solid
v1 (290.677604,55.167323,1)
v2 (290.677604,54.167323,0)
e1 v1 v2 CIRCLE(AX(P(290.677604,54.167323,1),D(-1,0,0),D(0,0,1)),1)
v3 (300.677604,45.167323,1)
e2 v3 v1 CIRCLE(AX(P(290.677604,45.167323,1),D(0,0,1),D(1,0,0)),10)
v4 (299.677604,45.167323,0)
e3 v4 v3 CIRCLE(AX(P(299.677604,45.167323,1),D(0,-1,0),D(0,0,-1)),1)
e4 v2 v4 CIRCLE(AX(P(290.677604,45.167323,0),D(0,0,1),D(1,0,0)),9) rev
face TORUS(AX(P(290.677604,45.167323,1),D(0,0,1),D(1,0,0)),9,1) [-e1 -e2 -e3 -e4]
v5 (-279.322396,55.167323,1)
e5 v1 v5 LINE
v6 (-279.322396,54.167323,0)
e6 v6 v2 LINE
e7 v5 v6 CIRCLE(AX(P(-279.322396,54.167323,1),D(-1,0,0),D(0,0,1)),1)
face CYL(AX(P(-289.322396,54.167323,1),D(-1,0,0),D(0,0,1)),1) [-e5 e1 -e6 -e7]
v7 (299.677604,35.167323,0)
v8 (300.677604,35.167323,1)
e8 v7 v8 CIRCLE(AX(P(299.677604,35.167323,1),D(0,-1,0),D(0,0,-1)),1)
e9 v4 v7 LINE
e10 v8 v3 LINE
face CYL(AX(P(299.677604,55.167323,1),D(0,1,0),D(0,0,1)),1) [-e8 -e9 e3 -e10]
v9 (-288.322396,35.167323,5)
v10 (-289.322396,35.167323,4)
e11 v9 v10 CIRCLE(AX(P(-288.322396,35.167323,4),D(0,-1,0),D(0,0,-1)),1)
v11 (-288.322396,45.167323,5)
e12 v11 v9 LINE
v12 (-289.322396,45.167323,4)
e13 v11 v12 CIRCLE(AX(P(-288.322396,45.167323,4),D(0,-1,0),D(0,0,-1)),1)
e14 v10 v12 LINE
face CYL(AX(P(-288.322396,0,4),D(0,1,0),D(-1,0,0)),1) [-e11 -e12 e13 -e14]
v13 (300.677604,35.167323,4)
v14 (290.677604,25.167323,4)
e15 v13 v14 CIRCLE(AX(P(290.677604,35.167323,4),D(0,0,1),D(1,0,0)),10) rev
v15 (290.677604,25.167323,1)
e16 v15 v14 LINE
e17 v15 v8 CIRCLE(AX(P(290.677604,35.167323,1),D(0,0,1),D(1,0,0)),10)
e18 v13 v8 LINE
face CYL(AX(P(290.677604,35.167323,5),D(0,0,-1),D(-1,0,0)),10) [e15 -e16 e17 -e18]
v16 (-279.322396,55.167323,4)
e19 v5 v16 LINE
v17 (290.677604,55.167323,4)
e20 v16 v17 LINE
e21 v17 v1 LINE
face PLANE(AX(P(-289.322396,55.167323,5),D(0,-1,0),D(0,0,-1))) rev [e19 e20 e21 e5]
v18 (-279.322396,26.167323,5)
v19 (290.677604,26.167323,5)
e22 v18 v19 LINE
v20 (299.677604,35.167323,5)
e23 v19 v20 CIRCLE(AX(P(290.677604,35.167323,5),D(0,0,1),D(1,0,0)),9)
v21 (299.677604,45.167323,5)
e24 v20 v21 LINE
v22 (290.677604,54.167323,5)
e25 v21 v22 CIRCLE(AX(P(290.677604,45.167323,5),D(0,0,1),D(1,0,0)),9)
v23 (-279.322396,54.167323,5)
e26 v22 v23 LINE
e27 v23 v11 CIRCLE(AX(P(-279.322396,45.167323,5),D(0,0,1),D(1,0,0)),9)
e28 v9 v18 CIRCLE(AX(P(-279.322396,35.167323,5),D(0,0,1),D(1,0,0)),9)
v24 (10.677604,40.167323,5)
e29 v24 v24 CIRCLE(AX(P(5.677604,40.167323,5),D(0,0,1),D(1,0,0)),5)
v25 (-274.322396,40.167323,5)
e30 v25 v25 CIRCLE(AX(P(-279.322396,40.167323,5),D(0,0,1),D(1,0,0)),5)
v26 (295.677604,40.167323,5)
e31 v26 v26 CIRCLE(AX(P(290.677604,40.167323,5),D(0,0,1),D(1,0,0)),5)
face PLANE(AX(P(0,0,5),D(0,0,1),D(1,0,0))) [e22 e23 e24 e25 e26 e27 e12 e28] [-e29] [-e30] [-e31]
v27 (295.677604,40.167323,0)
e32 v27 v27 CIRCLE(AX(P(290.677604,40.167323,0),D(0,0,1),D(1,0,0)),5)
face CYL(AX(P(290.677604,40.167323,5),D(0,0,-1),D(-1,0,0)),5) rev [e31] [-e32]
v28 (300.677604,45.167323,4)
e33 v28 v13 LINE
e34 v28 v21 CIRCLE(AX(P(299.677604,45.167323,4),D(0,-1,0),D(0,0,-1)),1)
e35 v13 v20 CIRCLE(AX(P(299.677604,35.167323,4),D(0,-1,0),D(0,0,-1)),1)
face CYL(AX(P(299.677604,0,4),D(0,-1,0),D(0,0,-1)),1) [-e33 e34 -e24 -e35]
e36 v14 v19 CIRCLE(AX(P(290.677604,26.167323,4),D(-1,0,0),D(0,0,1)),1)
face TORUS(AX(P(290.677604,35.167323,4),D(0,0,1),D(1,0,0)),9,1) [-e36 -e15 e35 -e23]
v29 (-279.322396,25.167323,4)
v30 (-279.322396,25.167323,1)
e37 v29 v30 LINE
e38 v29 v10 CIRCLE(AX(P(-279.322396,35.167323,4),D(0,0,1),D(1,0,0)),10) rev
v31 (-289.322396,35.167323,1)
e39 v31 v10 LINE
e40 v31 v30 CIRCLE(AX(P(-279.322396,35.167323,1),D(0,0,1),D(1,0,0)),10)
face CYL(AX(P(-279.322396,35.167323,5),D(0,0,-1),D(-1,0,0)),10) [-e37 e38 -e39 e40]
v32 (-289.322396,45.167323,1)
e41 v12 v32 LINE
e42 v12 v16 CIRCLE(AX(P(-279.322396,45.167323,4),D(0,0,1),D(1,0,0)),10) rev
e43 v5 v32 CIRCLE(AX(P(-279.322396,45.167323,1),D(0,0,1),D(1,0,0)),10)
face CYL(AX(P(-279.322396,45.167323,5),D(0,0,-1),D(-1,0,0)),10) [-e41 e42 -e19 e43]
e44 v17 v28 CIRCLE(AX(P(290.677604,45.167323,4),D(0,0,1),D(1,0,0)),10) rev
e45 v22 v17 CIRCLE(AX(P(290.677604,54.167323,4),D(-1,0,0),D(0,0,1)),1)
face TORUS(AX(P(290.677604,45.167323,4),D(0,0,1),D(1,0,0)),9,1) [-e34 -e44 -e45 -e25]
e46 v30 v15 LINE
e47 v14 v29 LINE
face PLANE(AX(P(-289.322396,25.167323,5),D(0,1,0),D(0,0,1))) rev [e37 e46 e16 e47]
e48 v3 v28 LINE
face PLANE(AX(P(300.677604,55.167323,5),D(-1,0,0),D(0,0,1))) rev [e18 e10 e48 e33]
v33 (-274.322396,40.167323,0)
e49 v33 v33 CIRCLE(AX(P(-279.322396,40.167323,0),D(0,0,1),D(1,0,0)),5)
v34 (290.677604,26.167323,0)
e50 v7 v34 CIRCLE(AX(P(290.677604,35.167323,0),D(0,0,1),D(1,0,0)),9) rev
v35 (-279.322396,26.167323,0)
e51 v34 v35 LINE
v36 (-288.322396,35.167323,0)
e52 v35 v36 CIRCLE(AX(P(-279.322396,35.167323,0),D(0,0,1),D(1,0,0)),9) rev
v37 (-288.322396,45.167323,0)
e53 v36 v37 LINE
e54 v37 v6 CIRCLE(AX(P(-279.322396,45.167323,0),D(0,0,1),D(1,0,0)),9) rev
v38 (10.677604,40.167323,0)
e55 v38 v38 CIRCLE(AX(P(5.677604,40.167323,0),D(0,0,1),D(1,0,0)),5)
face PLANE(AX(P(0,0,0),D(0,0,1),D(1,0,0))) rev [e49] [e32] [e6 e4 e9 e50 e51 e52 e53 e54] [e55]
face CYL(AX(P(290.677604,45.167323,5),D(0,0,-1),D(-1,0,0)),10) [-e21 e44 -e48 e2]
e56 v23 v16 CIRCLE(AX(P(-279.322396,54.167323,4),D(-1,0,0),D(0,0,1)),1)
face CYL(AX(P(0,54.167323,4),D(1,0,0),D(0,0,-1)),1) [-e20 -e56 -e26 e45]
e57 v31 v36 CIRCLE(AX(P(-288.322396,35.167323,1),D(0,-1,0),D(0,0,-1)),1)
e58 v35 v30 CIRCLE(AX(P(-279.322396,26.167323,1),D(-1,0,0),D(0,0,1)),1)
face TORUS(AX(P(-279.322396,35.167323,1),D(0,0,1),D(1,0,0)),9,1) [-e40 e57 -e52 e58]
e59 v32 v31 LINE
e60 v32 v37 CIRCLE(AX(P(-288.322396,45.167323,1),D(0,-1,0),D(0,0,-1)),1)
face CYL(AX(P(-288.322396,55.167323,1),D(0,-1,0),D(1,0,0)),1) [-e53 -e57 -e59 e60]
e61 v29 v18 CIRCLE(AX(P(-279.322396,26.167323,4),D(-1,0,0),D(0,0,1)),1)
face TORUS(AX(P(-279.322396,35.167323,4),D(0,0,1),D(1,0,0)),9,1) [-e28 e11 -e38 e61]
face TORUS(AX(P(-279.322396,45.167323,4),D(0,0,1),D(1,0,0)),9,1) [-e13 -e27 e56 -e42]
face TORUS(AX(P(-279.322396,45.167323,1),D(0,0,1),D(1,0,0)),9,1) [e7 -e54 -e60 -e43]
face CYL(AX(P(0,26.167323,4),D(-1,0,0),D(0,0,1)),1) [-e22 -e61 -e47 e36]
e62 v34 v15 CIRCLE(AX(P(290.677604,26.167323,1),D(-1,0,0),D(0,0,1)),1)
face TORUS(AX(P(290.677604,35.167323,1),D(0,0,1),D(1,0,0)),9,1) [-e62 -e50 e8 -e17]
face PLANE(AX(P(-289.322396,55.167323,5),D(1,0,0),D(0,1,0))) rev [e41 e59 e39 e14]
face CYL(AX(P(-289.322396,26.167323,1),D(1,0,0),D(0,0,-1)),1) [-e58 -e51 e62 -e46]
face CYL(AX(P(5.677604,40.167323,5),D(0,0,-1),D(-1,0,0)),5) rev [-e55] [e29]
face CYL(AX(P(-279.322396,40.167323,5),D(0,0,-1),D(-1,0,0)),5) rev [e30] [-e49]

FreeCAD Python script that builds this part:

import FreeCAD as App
import Part
import Sketcher
from FreeCAD import Vector


def edges_at(feature, points):
    """Names of the edges that pass closest to the given points."""
    edges = feature.Shape.Edges
    near = lambda p: min(range(len(edges)), key=lambda i: edges[i].distToShape(Part.Vertex(*p))[0])
    return sorted({f"Edge{near(p) + 1}" for p in points})

doc = App.newDocument("Part")
body = doc.addObject("PartDesign::Body", "Body")

sketch1 = doc.addObject("Sketcher::SketchObject", "Sketch")
body.addObject(sketch1)
sketch1.AttachmentSupport = (doc.XY_Plane, [""])
sketch1.MapMode = "FlatFace"
sketch1.addGeometry(Part.LineSegment(Vector(-289.322396, 55.167323, 0), Vector(-289.322396, 25.167323, 0)), False)
sketch1.addGeometry(Part.LineSegment(Vector(-289.322396, 25.167323, 0), Vector(300.677604, 25.167323, 0)), False)
sketch1.addGeometry(Part.LineSegment(Vector(300.677604, 25.167323, 0), Vector(300.677604, 55.167323, 0)), False)
sketch1.addGeometry(Part.LineSegment(Vector(300.677604, 55.167323, 0), Vector(-289.322396, 55.167323, 0)), False)
sketch1.addGeometry(Part.Circle(Vector(-279.322396, 40.167323, 0), Vector(0, 0, 1), 5), False)
sketch1.addGeometry(Part.Circle(Vector(5.677604, 40.167323, 0), Vector(0, 0, 1), 5), False)
sketch1.addGeometry(Part.Circle(Vector(290.677604, 40.167323, 0), Vector(0, 0, 1), 5), False)
sketch1.addConstraint(Sketcher.Constraint("Coincident", 0, 2, 1, 1))
sketch1.addConstraint(Sketcher.Constraint("Coincident", 1, 2, 2, 1))
sketch1.addConstraint(Sketcher.Constraint("Coincident", 2, 2, 3, 1))
sketch1.addConstraint(Sketcher.Constraint("Coincident", 3, 2, 0, 1))
sketch1.addConstraint(Sketcher.Constraint("Vertical", 0))
sketch1.addConstraint(Sketcher.Constraint("Horizontal", 1))
sketch1.addConstraint(Sketcher.Constraint("Vertical", 2))
sketch1.addConstraint(Sketcher.Constraint("Horizontal", 3))
sketch1.addConstraint(Sketcher.Constraint("Equal", 4, 5))
sketch1.addConstraint(Sketcher.Constraint("Equal", 5, 6))
sketch1.addConstraint(Sketcher.Constraint("Horizontal", 4, 3, 5, 3))
sketch1.addConstraint(Sketcher.Constraint("Horizontal", 5, 3, 6, 3))
sketch1.addConstraint(Sketcher.Constraint("Diameter", 4, 10.0))
sketch1.addConstraint(Sketcher.Constraint("DistanceX", 1, 1, 1, 2, 590.0))
sketch1.addConstraint(Sketcher.Constraint("DistanceY", 0, 2, 0, 1, 30.0))
sketch1.addConstraint(Sketcher.Constraint("DistanceX", 4, 3, 5, 3, 285.0))
sketch1.addConstraint(Sketcher.Constraint("DistanceX", 5, 3, 6, 3, 285.0))
sketch1.addConstraint(Sketcher.Constraint("DistanceX", 0, 2, 4, 3, 10.0))
sketch1.addConstraint(Sketcher.Constraint("DistanceY", 0, 2, 4, 3, 15.0))
sketch1.addConstraint(Sketcher.Constraint("DistanceX", 4, 3, -1, 1, 279.322396))
sketch1.addConstraint(Sketcher.Constraint("DistanceY", -1, 1, 4, 3, 40.167323))
pad1 = doc.addObject("PartDesign::Pad", "Pad")
body.addObject(pad1)
pad1.Profile = sketch1
pad1.Length = 5
doc.recompute()

fillet = doc.addObject("PartDesign::Fillet", "Fillet")
body.addObject(fillet)
fillet.Base = (pad1, edges_at(pad1, [
    (-289.322, 55.167, 2.5),
    (300.678, 55.167, 2.5),
    (300.678, 25.167, 2.5),
    (-289.322, 25.167, 2.5),
]))
fillet.Radius = 10
doc.recompute()

fillet2 = doc.addObject("PartDesign::Fillet", "Fillet001")
body.addObject(fillet2)
fillet2.Base = (fillet, edges_at(fillet, [
    (300.678, 40.167, 0),
    (300.678, 40.167, 5),
    (-289.322, 40.167, 0),
    (5.678, 55.167, 0),
    (5.678, 25.167, 0),
    (-286.393, 52.238, 0),
    (-286.393, 28.096, 0),
    (297.749, 52.238, 0),
    (297.749, 28.096, 0),
    (5.678, 25.167, 5),
    (-289.322, 40.167, 5),
    (5.678, 55.167, 5),
    (-286.393, 52.238, 5),
    (-286.393, 28.096, 5),
    (297.749, 52.238, 5),
    (297.749, 28.096, 5),
]))
fillet2.Radius = 1

doc.recompute()
